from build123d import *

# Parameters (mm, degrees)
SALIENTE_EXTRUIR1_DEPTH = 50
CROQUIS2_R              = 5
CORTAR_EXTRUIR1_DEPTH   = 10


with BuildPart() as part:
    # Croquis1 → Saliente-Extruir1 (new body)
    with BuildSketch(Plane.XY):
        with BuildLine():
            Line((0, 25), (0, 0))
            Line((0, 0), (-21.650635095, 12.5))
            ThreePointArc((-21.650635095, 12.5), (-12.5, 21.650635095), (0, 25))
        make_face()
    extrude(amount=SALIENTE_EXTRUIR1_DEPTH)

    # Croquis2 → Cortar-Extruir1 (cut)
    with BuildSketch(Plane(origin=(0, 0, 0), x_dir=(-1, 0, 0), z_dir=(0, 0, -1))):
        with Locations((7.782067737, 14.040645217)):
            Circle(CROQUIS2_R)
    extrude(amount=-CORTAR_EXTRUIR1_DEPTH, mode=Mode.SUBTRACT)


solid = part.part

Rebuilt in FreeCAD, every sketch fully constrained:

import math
import FreeCAD as App
import Part
import Sketcher

V = App.Vector
Q = App.Units.Quantity

doc = App.newDocument("Part")
body = doc.addObject("PartDesign::Body", "Body")

# Sketch on XY plane
sketch1 = body.newObject("Sketcher::SketchObject", "Sketch")
sketch1.AttachmentSupport = (doc.getObject("XY_Plane"), [""])
sketch1.MapMode = "FlatFace"
sketch1.addGeometry([
    Part.LineSegment(V(0, 0, 0), V(0, 25, 0)),
    Part.ArcOfCircle(Part.Circle(V(0, 0, 0), V(0, 0, 1), 25), math.radians(90), math.radians(150)),
    Part.LineSegment(V(-22, 12, 0), V(0, 0, 0)),
], False)
sketch1.addConstraint([
    Sketcher.Constraint("Coincident", 0, 2, 1, 1),
    Sketcher.Constraint("Coincident", 1, 2, 2, 1),
    Sketcher.Constraint("Coincident", 2, 2, 0, 1),
    Sketcher.Constraint("Vertical", 0),
    Sketcher.Constraint("Coincident", 1, 3, -1, 1),
    Sketcher.Constraint("Coincident", 2, 2, -1, 1),
    Sketcher.Constraint("Radius", 1, Q("25 mm")),
    Sketcher.Constraint("Angle", 2, Q("-30 deg")),
])
pad1 = body.newObject("PartDesign::Pad", "Pad")
pad1.Profile = sketch1
pad1.Length = 50

# Sketch on XY plane
sketch2 = body.newObject("Sketcher::SketchObject", "Sketch001")
sketch2.AttachmentSupport = (doc.getObject("XY_Plane"), [""])
sketch2.MapMode = "FlatFace"
sketch2.addGeometry(Part.Circle(V(-8, 14, 0), V(0, 0, 1), 5), False)
sketch2.addConstraint([
    Sketcher.Constraint("Diameter", 0, Q("10 mm")),
    Sketcher.Constraint("DistanceX", 0, 3, -1, 1, Q("7.782068 mm")),
    Sketcher.Constraint("DistanceY", -1, 1, 0, 3, Q("14.040645 mm")),
])
pocket1 = body.newObject("PartDesign::Pocket", "Pocket")
pocket1.Profile = sketch2
pocket1.Length = 10
pocket1.Reversed = True

doc.recompute()
